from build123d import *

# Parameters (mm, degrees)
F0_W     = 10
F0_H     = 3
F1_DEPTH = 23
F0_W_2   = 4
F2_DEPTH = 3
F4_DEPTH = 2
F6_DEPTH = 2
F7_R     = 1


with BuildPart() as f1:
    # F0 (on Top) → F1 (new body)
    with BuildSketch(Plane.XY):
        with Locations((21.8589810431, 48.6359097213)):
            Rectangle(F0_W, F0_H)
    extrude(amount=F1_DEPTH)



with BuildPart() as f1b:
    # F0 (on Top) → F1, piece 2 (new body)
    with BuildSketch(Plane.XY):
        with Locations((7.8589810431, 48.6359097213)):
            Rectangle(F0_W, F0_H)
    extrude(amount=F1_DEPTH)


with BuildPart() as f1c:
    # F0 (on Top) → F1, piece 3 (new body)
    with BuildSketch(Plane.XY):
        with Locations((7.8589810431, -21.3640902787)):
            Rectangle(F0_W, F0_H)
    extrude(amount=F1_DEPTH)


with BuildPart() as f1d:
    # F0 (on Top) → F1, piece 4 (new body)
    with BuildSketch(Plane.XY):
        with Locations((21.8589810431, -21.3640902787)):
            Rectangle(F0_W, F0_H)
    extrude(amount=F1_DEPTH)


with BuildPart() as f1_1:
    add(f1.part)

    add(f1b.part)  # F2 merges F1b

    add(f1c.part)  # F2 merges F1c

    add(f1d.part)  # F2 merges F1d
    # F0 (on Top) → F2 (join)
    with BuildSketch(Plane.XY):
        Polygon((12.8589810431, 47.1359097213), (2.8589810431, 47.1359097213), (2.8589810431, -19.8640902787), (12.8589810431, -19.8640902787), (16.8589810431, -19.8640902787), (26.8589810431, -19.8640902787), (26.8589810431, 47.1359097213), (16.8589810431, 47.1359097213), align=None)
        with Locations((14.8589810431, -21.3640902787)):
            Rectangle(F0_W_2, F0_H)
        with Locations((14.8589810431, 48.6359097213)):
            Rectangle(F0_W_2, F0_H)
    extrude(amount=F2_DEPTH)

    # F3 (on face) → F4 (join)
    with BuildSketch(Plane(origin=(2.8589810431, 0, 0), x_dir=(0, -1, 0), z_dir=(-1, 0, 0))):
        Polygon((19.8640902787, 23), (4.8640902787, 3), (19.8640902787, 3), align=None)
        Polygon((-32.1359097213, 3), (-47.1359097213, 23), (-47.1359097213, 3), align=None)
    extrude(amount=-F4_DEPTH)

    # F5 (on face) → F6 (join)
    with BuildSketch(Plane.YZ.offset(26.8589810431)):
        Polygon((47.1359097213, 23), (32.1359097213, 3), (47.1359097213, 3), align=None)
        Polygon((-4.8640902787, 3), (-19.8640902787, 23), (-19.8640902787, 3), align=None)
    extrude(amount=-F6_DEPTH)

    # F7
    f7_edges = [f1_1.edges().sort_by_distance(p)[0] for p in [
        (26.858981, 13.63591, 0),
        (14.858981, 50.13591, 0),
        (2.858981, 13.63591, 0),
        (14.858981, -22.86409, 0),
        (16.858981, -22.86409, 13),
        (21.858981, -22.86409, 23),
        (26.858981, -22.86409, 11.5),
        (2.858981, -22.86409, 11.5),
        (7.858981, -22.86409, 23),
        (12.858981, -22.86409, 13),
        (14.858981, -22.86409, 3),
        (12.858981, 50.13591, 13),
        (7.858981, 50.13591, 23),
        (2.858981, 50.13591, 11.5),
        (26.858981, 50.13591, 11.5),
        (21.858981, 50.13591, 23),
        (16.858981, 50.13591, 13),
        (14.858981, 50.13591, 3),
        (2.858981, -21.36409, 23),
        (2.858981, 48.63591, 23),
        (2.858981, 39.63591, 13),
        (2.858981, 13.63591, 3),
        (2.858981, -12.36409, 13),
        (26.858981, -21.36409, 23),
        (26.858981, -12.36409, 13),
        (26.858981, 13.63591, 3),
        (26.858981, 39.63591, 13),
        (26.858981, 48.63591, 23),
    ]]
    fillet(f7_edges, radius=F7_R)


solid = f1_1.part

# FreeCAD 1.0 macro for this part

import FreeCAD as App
import Part
import Sketcher


def edges_at(feature, points):
    """Names of the edges that pass closest to the given points."""
    edges = feature.Shape.Edges
    near = lambda p: min(range(len(edges)), key=lambda i: edges[i].distToShape(Part.Vertex(*p))[0])
    return sorted({f"Edge{near(p) + 1}" for p in points})

doc = App.newDocument("Part")
params = doc.addObject("Spreadsheet::Sheet", "Params")
for row, (alias, value) in enumerate([
    ("sketch1_width", "10 mm"),
    ("sketch1_height", "3 mm"),
    ("pad1_length", "23 mm"),
    ("sketch2_width", "10 mm"),
    ("sketch2_height", "3 mm"),
    ("pad2_length", "23 mm"),
    ("sketch3_width", "10 mm"),
    ("sketch3_height", "3 mm"),
    ("pad3_length", "23 mm"),
    ("sketch4_width", "10 mm"),
    ("sketch4_height", "3 mm"),
    ("pad4_length", "23 mm"),
    ("sketch5_width", "10 mm"),
    ("sketch5_width2", "4 mm"),
    ("sketch5_height", "67 mm"),
    ("sketch5_height2", "3 mm"),
    ("pad5_length", "3 mm"),
    ("sketch6_width", "15 mm"),
    ("sketch6_height", "20 mm"),
    ("pad6_length", "2 mm"),
    ("sketch7_width", "15 mm"),
    ("sketch7_height", "20 mm"),
    ("pad7_length", "2 mm"),
    ("fillet_radius", "1 mm"),
], start=1):
    params.set(f"A{row}", alias)
    params.set(f"B{row}", "=" + value)
    params.setAlias(f"B{row}", alias)

body = doc.addObject("PartDesign::Body", "Body")

# Sketch on XY plane
sketch1 = body.newObject("Sketcher::SketchObject", "Sketch")
sketch1.AttachmentSupport = (doc.getObject("XY_Plane"), [""])
sketch1.MapMode = "FlatFace"
sketch1.addGeometry(Part.LineSegment(App.Vector(16.858981, 50.13591, 0), App.Vector(16.858981, 47.13591, 0)), False)
sketch1.addGeometry(Part.LineSegment(App.Vector(16.858981, 47.13591, 0), App.Vector(26.858981, 47.13591, 0)), False)
sketch1.addGeometry(Part.LineSegment(App.Vector(26.858981, 47.13591, 0), App.Vector(26.858981, 50.13591, 0)), False)
sketch1.addGeometry(Part.LineSegment(App.Vector(26.858981, 50.13591, 0), App.Vector(16.858981, 50.13591, 0)), False)
sketch1.addConstraint(Sketcher.Constraint("Coincident", 0, 2, 1, 1))
sketch1.addConstraint(Sketcher.Constraint("Coincident", 1, 2, 2, 1))
sketch1.addConstraint(Sketcher.Constraint("Coincident", 2, 2, 3, 1))
sketch1.addConstraint(Sketcher.Constraint("Coincident", 3, 2, 0, 1))
sketch1.addConstraint(Sketcher.Constraint("Vertical", 0))
sketch1.addConstraint(Sketcher.Constraint("Horizontal", 1))
sketch1.addConstraint(Sketcher.Constraint("Vertical", 2))
sketch1.addConstraint(Sketcher.Constraint("Horizontal", 3))
sketch1.addConstraint(Sketcher.Constraint("DistanceX", 1, 1, 1, 2, 10.0))
sketch1.addConstraint(Sketcher.Constraint("DistanceY", 0, 2, 0, 1, 3.0))
sketch1.addConstraint(Sketcher.Constraint("DistanceX", -1, 1, 0, 2, 16.858981))
sketch1.addConstraint(Sketcher.Constraint("DistanceY", -1, 1, 0, 2, 47.13591))
sketch1.setExpression("Constraints[8]", "Params.sketch1_width")
sketch1.setExpression("Constraints[9]", "Params.sketch1_height")
pad1 = body.newObject("PartDesign::Pad", "Pad")
pad1.Profile = sketch1
pad1.setExpression("Length", "Params.pad1_length")
body2 = doc.addObject("PartDesign::Body", "Body001")

# Sketch on XY plane
sketch2 = body2.newObject("Sketcher::SketchObject", "Sketch001")
sketch2.AttachmentSupport = (doc.getObject("XY_Plane001"), [""])
sketch2.MapMode = "FlatFace"
sketch2.addGeometry(Part.LineSegment(App.Vector(2.858981, 50.13591, 0), App.Vector(2.858981, 47.13591, 0)), False)
sketch2.addGeometry(Part.LineSegment(App.Vector(2.858981, 47.13591, 0), App.Vector(12.858981, 47.13591, 0)), False)
sketch2.addGeometry(Part.LineSegment(App.Vector(12.858981, 47.13591, 0), App.Vector(12.858981, 50.13591, 0)), False)
sketch2.addGeometry(Part.LineSegment(App.Vector(12.858981, 50.13591, 0), App.Vector(2.858981, 50.13591, 0)), False)
sketch2.addConstraint(Sketcher.Constraint("Coincident", 0, 2, 1, 1))
sketch2.addConstraint(Sketcher.Constraint("Coincident", 1, 2, 2, 1))
sketch2.addConstraint(Sketcher.Constraint("Coincident", 2, 2, 3, 1))
sketch2.addConstraint(Sketcher.Constraint("Coincident", 3, 2, 0, 1))
sketch2.addConstraint(Sketcher.Constraint("Vertical", 0))
sketch2.addConstraint(Sketcher.Constraint("Horizontal", 1))
sketch2.addConstraint(Sketcher.Constraint("Vertical", 2))
sketch2.addConstraint(Sketcher.Constraint("Horizontal", 3))
sketch2.addConstraint(Sketcher.Constraint("DistanceX", 1, 1, 1, 2, 10.0))
sketch2.addConstraint(Sketcher.Constraint("DistanceY", 0, 2, 0, 1, 3.0))
sketch2.addConstraint(Sketcher.Constraint("DistanceX", -1, 1, 0, 2, 2.858981))
sketch2.addConstraint(Sketcher.Constraint("DistanceY", -1, 1, 0, 2, 47.13591))
sketch2.setExpression("Constraints[8]", "Params.sketch2_width")
sketch2.setExpression("Constraints[9]", "Params.sketch2_height")
pad2 = body2.newObject("PartDesign::Pad", "Pad001")
pad2.Profile = sketch2
pad2.setExpression("Length", "Params.pad2_length")
body3 = doc.addObject("PartDesign::Body", "Body002")

# Sketch on XY plane
sketch3 = body3.newObject("Sketcher::SketchObject", "Sketch002")
sketch3.AttachmentSupport = (doc.getObject("XY_Plane002"), [""])
sketch3.MapMode = "FlatFace"
sketch3.addGeometry(Part.LineSegment(App.Vector(2.858981, -19.86409, 0), App.Vector(2.858981, -22.86409, 0)), False)
sketch3.addGeometry(Part.LineSegment(App.Vector(2.858981, -22.86409, 0), App.Vector(12.858981, -22.86409, 0)), False)
sketch3.addGeometry(Part.LineSegment(App.Vector(12.858981, -22.86409, 0), App.Vector(12.858981, -19.86409, 0)), False)
sketch3.addGeometry(Part.LineSegment(App.Vector(12.858981, -19.86409, 0), App.Vector(2.858981, -19.86409, 0)), False)
sketch3.addConstraint(Sketcher.Constraint("Coincident", 0, 2, 1, 1))
sketch3.addConstraint(Sketcher.Constraint("Coincident", 1, 2, 2, 1))
sketch3.addConstraint(Sketcher.Constraint("Coincident", 2, 2, 3, 1))
sketch3.addConstraint(Sketcher.Constraint("Coincident", 3, 2, 0, 1))
sketch3.addConstraint(Sketcher.Constraint("Vertical", 0))
sketch3.addConstraint(Sketcher.Constraint("Horizontal", 1))
sketch3.addConstraint(Sketcher.Constraint("Vertical", 2))
sketch3.addConstraint(Sketcher.Constraint("Horizontal", 3))
sketch3.addConstraint(Sketcher.Constraint("DistanceX", 1, 1, 1, 2, 10.0))
sketch3.addConstraint(Sketcher.Constraint("DistanceY", 0, 2, 0, 1, 3.0))
sketch3.addConstraint(Sketcher.Constraint("DistanceX", -1, 1, 0, 2, 2.858981))
sketch3.addConstraint(Sketcher.Constraint("DistanceY", 0, 2, -1, 1, 22.86409))
sketch3.setExpression("Constraints[8]", "Params.sketch3_width")
sketch3.setExpression("Constraints[9]", "Params.sketch3_height")
pad3 = body3.newObject("PartDesign::Pad", "Pad002")
pad3.Profile = sketch3
pad3.setExpression("Length", "Params.pad3_length")
body4 = doc.addObject("PartDesign::Body", "Body003")

# Sketch on XY plane
sketch4 = body4.newObject("Sketcher::SketchObject", "Sketch003")
sketch4.AttachmentSupport = (doc.getObject("XY_Plane003"), [""])
sketch4.MapMode = "FlatFace"
sketch4.addGeometry(Part.LineSegment(App.Vector(16.858981, -19.86409, 0), App.Vector(16.858981, -22.86409, 0)), False)
sketch4.addGeometry(Part.LineSegment(App.Vector(16.858981, -22.86409, 0), App.Vector(26.858981, -22.86409, 0)), False)
sketch4.addGeometry(Part.LineSegment(App.Vector(26.858981, -22.86409, 0), App.Vector(26.858981, -19.86409, 0)), False)
sketch4.addGeometry(Part.LineSegment(App.Vector(26.858981, -19.86409, 0), App.Vector(16.858981, -19.86409, 0)), False)
sketch4.addConstraint(Sketcher.Constraint("Coincident", 0, 2, 1, 1))
sketch4.addConstraint(Sketcher.Constraint("Coincident", 1, 2, 2, 1))
sketch4.addConstraint(Sketcher.Constraint("Coincident", 2, 2, 3, 1))
sketch4.addConstraint(Sketcher.Constraint("Coincident", 3, 2, 0, 1))
sketch4.addConstraint(Sketcher.Constraint("Vertical", 0))
sketch4.addConstraint(Sketcher.Constraint("Horizontal", 1))
sketch4.addConstraint(Sketcher.Constraint("Vertical", 2))
sketch4.addConstraint(Sketcher.Constraint("Horizontal", 3))
sketch4.addConstraint(Sketcher.Constraint("DistanceX", 1, 1, 1, 2, 10.0))
sketch4.addConstraint(Sketcher.Constraint("DistanceY", 0, 2, 0, 1, 3.0))
sketch4.addConstraint(Sketcher.Constraint("DistanceX", -1, 1, 0, 2, 16.858981))
sketch4.addConstraint(Sketcher.Constraint("DistanceY", 0, 2, -1, 1, 22.86409))
sketch4.setExpression("Constraints[8]", "Params.sketch4_width")
sketch4.setExpression("Constraints[9]", "Params.sketch4_height")
pad4 = body4.newObject("PartDesign::Pad", "Pad003")
pad4.Profile = sketch4
pad4.setExpression("Length", "Params.pad4_length")
body.AllowCompound = True
doc.recompute()

boolean = body.newObject("PartDesign::Boolean", "Boolean")
boolean.Type = "Fuse"
boolean.addObjects([body2])
doc.recompute()

boolean2 = body.newObject("PartDesign::Boolean", "Boolean001")
boolean2.Type = "Fuse"
boolean2.addObjects([body3])
doc.recompute()

boolean3 = body.newObject("PartDesign::Boolean", "Boolean002")
boolean3.Type = "Fuse"
boolean3.addObjects([body4])

# Sketch on XY plane
sketch5 = body.newObject("Sketcher::SketchObject", "Sketch004")
sketch5.AttachmentSupport = (doc.getObject("XY_Plane"), [""])
sketch5.MapMode = "FlatFace"
sketch5.addGeometry(Part.LineSegment(App.Vector(2.858981, 47.13591, 0), App.Vector(2.858981, -19.86409, 0)), False)
sketch5.addGeometry(Part.LineSegment(App.Vector(2.858981, -19.86409, 0), App.Vector(12.858981, -19.86409, 0)), False)
sketch5.addGeometry(Part.LineSegment(App.Vector(12.858981, -19.86409, 0), App.Vector(12.858981, -22.86409, 0)), False)
sketch5.addGeometry(Part.LineSegment(App.Vector(12.858981, -22.86409, 0), App.Vector(16.858981, -22.86409, 0)), False)
sketch5.addGeometry(Part.LineSegment(App.Vector(16.858981, -22.86409, 0), App.Vector(16.858981, -19.86409, 0)), False)
sketch5.addGeometry(Part.LineSegment(App.Vector(16.858981, -19.86409, 0), App.Vector(26.858981, -19.86409, 0)), False)
sketch5.addGeometry(Part.LineSegment(App.Vector(26.858981, -19.86409, 0), App.Vector(26.858981, 47.13591, 0)), False)
sketch5.addGeometry(Part.LineSegment(App.Vector(26.858981, 47.13591, 0), App.Vector(16.858981, 47.13591, 0)), False)
sketch5.addGeometry(Part.LineSegment(App.Vector(16.858981, 47.13591, 0), App.Vector(16.858981, 50.13591, 0)), False)
sketch5.addGeometry(Part.LineSegment(App.Vector(16.858981, 50.13591, 0), App.Vector(12.858981, 50.13591, 0)), False)
sketch5.addGeometry(Part.LineSegment(App.Vector(12.858981, 50.13591, 0), App.Vector(12.858981, 47.13591, 0)), False)
sketch5.addGeometry(Part.LineSegment(App.Vector(12.858981, 47.13591, 0), App.Vector(2.858981, 47.13591, 0)), False)
sketch5.addConstraint(Sketcher.Constraint("Coincident", 0, 2, 1, 1))
sketch5.addConstraint(Sketcher.Constraint("Coincident", 1, 2, 2, 1))
sketch5.addConstraint(Sketcher.Constraint("Coincident", 2, 2, 3, 1))
sketch5.addConstraint(Sketcher.Constraint("Coincident", 3, 2, 4, 1))
sketch5.addConstraint(Sketcher.Constraint("Coincident", 4, 2, 5, 1))
sketch5.addConstraint(Sketcher.Constraint("Coincident", 5, 2, 6, 1))
sketch5.addConstraint(Sketcher.Constraint("Coincident", 6, 2, 7, 1))
sketch5.addConstraint(Sketcher.Constraint("Coincident", 7, 2, 8, 1))
sketch5.addConstraint(Sketcher.Constraint("Coincident", 8, 2, 9, 1))
sketch5.addConstraint(Sketcher.Constraint("Coincident", 9, 2, 10, 1))
sketch5.addConstraint(Sketcher.Constraint("Coincident", 10, 2, 11, 1))
sketch5.addConstraint(Sketcher.Constraint("Coincident", 11, 2, 0, 1))
sketch5.addConstraint(Sketcher.Constraint("Vertical", 0))
sketch5.addConstraint(Sketcher.Constraint("Horizontal", 1))
sketch5.addConstraint(Sketcher.Constraint("Vertical", 2))
sketch5.addConstraint(Sketcher.Constraint("Horizontal", 3))
sketch5.addConstraint(Sketcher.Constraint("Vertical", 4))
sketch5.addConstraint(Sketcher.Constraint("Horizontal", 5))
sketch5.addConstraint(Sketcher.Constraint("Vertical", 6))
sketch5.addConstraint(Sketcher.Constraint("Horizontal", 7))
sketch5.addConstraint(Sketcher.Constraint("Vertical", 8))
sketch5.addConstraint(Sketcher.Constraint("Horizontal", 9))
sketch5.addConstraint(Sketcher.Constraint("Vertical", 10))
sketch5.addConstraint(Sketcher.Constraint("Horizontal", 11))
sketch5.addConstraint(Sketcher.Constraint("Horizontal", 1, 2, 4, 2))
sketch5.addConstraint(Sketcher.Constraint("Horizontal", 7, 2, 10, 2))
sketch5.addConstraint(Sketcher.Constraint("Vertical", 4, 2, 7, 2))
sketch5.addConstraint(Sketcher.Constraint("Vertical", 2, 2, 9, 2))
sketch5.addConstraint(Sketcher.Constraint("Equal", 1, 5))
sketch5.addConstraint(Sketcher.Constraint("Equal", 4, 8))
sketch5.addConstraint(Sketcher.Constraint("DistanceX", 1, 1, 1, 2, 10.0))
sketch5.addConstraint(Sketcher.Constraint("DistanceX", 3, 1, 3, 2, 4.0))
sketch5.addConstraint(Sketcher.Constraint("DistanceY", 0, 2, 0, 1, 67.0))
sketch5.addConstraint(Sketcher.Constraint("DistanceY", 2, 2, 2, 1, 3.0))
sketch5.addConstraint(Sketcher.Constraint("DistanceX", -1, 1, 0, 2, 2.858981))
sketch5.addConstraint(Sketcher.Constraint("DistanceY", 0, 2, -1, 1, 19.86409))
sketch5.setExpression("Constraints[30]", "Params.sketch5_width")
sketch5.setExpression("Constraints[31]", "Params.sketch5_width2")
sketch5.setExpression("Constraints[32]", "Params.sketch5_height")
sketch5.setExpression("Constraints[33]", "Params.sketch5_height2")
pad5 = body.newObject("PartDesign::Pad", "Pad004")
pad5.Profile = sketch5
pad5.setExpression("Length", "Params.pad5_length")

# Sketch on YZ plane
sketch6 = body.newObject("Sketcher::SketchObject", "Sketch005")
sketch6.AttachmentSupport = (doc.getObject("YZ_Plane"), [""])
sketch6.MapMode = "FlatFace"
sketch6.AttachmentOffset = App.Placement(App.Vector(0, 0, 2.858981), App.Rotation())
sketch6.addGeometry(Part.LineSegment(App.Vector(-19.86409, 23, 0), App.Vector(-4.86409, 3, 0)), False)
sketch6.addGeometry(Part.LineSegment(App.Vector(-4.86409, 3, 0), App.Vector(-19.86409, 3, 0)), False)
sketch6.addGeometry(Part.LineSegment(App.Vector(-19.86409, 3, 0), App.Vector(-19.86409, 23, 0)), False)
sketch6.addGeometry(Part.LineSegment(App.Vector(32.13591, 3, 0), App.Vector(47.13591, 23, 0)), False)
sketch6.addGeometry(Part.LineSegment(App.Vector(47.13591, 23, 0), App.Vector(47.13591, 3, 0)), False)
sketch6.addGeometry(Part.LineSegment(App.Vector(47.13591, 3, 0), App.Vector(32.13591, 3, 0)), False)
sketch6.addConstraint(Sketcher.Constraint("Coincident", 0, 2, 1, 1))
sketch6.addConstraint(Sketcher.Constraint("Coincident", 1, 2, 2, 1))
sketch6.addConstraint(Sketcher.Constraint("Coincident", 2, 2, 0, 1))
sketch6.addConstraint(Sketcher.Constraint("Coincident", 3, 2, 4, 1))
sketch6.addConstraint(Sketcher.Constraint("Coincident", 4, 2, 5, 1))
sketch6.addConstraint(Sketcher.Constraint("Coincident", 5, 2, 3, 1))
sketch6.addConstraint(Sketcher.Constraint("Horizontal", 1))
sketch6.addConstraint(Sketcher.Constraint("Vertical", 2))
sketch6.addConstraint(Sketcher.Constraint("Vertical", 4))
sketch6.addConstraint(Sketcher.Constraint("Horizontal", 5))
sketch6.addConstraint(Sketcher.Constraint("Horizontal", 2, 2, 3, 2))
sketch6.addConstraint(Sketcher.Constraint("Horizontal", 1, 2, 4, 2))
sketch6.addConstraint(Sketcher.Constraint("Equal", 1, 5))
sketch6.addConstraint(Sketcher.Constraint("DistanceX", 1, 2, 1, 1, 15.0))
sketch6.addConstraint(Sketcher.Constraint("DistanceY", 2, 1, 2, 2, 20.0))
sketch6.addConstraint(Sketcher.Constraint("DistanceY", -1, 1, 0, 2, 3.0))
sketch6.addConstraint(Sketcher.Constraint("DistanceX", 0, 2, 3, 2, 52.0))
sketch6.addConstraint(Sketcher.Constraint("DistanceX", 0, 2, -1, 1, 4.86409))
sketch6.setExpression("Constraints[13]", "Params.sketch6_width")
sketch6.setExpression("Constraints[14]", "Params.sketch6_height")
pad6 = body.newObject("PartDesign::Pad", "Pad005")
pad6.Profile = sketch6
pad6.setExpression("Length", "Params.pad6_length")

# Sketch on YZ plane
sketch7 = body.newObject("Sketcher::SketchObject", "Sketch006")
sketch7.AttachmentSupport = (doc.getObject("YZ_Plane"), [""])
sketch7.MapMode = "FlatFace"
sketch7.AttachmentOffset = App.Placement(App.Vector(0, 0, 26.858981), App.Rotation())
sketch7.addGeometry(Part.LineSegment(App.Vector(47.13591, 23, 0), App.Vector(32.13591, 3, 0)), False)
sketch7.addGeometry(Part.LineSegment(App.Vector(32.13591, 3, 0), App.Vector(47.13591, 3, 0)), False)
sketch7.addGeometry(Part.LineSegment(App.Vector(47.13591, 3, 0), App.Vector(47.13591, 23, 0)), False)
sketch7.addGeometry(Part.LineSegment(App.Vector(-4.86409, 3, 0), App.Vector(-19.86409, 23, 0)), False)
sketch7.addGeometry(Part.LineSegment(App.Vector(-19.86409, 23, 0), App.Vector(-19.86409, 3, 0)), False)
sketch7.addGeometry(Part.LineSegment(App.Vector(-19.86409, 3, 0), App.Vector(-4.86409, 3, 0)), False)
sketch7.addConstraint(Sketcher.Constraint("Coincident", 0, 2, 1, 1))
sketch7.addConstraint(Sketcher.Constraint("Coincident", 1, 2, 2, 1))
sketch7.addConstraint(Sketcher.Constraint("Coincident", 2, 2, 0, 1))
sketch7.addConstraint(Sketcher.Constraint("Coincident", 3, 2, 4, 1))
sketch7.addConstraint(Sketcher.Constraint("Coincident", 4, 2, 5, 1))
sketch7.addConstraint(Sketcher.Constraint("Coincident", 5, 2, 3, 1))
sketch7.addConstraint(Sketcher.Constraint("Horizontal", 1))
sketch7.addConstraint(Sketcher.Constraint("Vertical", 2))
sketch7.addConstraint(Sketcher.Constraint("Vertical", 4))
sketch7.addConstraint(Sketcher.Constraint("Horizontal", 5))
sketch7.addConstraint(Sketcher.Constraint("Horizontal", 2, 2, 3, 2))
sketch7.addConstraint(Sketcher.Constraint("Horizontal", 1, 2, 4, 2))
sketch7.addConstraint(Sketcher.Constraint("Equal", 1, 5))
sketch7.addConstraint(Sketcher.Constraint("DistanceX", 1, 1, 1, 2, 15.0))
sketch7.addConstraint(Sketcher.Constraint("DistanceY", 2, 1, 2, 2, 20.0))
sketch7.addConstraint(Sketcher.Constraint("DistanceY", -1, 1, 0, 2, 3.0))
sketch7.addConstraint(Sketcher.Constraint("DistanceX", 3, 2, 0, 2, 52.0))
sketch7.addConstraint(Sketcher.Constraint("DistanceX", -1, 1, 0, 2, 32.13591))
sketch7.setExpression("Constraints[13]", "Params.sketch7_width")
sketch7.setExpression("Constraints[14]", "Params.sketch7_height")
pad7 = body.newObject("PartDesign::Pad", "Pad006")
pad7.Profile = sketch7
pad7.setExpression("Length", "Params.pad7_length")
pad7.Reversed = True
doc.recompute()

fillet = body.newObject("PartDesign::Fillet", "Fillet")
fillet.Base = (pad7, edges_at(pad7, [
    (26.859, 13.636, 0),
    (14.859, 50.136, 0),
    (2.859, 13.636, 0),
    (14.859, -22.864, 0),
    (16.859, -22.864, 13),
    (21.859, -22.864, 23),
    (26.859, -22.864, 11.5),
    (2.859, -22.864, 11.5),
    (7.859, -22.864, 23),
    (12.859, -22.864, 13),
    (14.859, -22.864, 3),
    (12.859, 50.136, 13),
    (7.859, 50.136, 23),
    (2.859, 50.136, 11.5),
    (26.859, 50.136, 11.5),
    (21.859, 50.136, 23),
    (16.859, 50.136, 13),
    (14.859, 50.136, 3),
    (2.859, -21.364, 23),
    (2.859, 48.636, 23),
    (2.859, 39.636, 13),
    (2.859, 13.636, 3),
    (2.859, -12.364, 13),
    (26.859, -21.364, 23),
    (26.859, -12.364, 13),
    (26.859, 13.636, 3),
    (26.859, 39.636, 13),
    (26.859, 48.636, 23),
]))
fillet.setExpression("Radius", "Params.fillet_radius")

doc.recompute()
